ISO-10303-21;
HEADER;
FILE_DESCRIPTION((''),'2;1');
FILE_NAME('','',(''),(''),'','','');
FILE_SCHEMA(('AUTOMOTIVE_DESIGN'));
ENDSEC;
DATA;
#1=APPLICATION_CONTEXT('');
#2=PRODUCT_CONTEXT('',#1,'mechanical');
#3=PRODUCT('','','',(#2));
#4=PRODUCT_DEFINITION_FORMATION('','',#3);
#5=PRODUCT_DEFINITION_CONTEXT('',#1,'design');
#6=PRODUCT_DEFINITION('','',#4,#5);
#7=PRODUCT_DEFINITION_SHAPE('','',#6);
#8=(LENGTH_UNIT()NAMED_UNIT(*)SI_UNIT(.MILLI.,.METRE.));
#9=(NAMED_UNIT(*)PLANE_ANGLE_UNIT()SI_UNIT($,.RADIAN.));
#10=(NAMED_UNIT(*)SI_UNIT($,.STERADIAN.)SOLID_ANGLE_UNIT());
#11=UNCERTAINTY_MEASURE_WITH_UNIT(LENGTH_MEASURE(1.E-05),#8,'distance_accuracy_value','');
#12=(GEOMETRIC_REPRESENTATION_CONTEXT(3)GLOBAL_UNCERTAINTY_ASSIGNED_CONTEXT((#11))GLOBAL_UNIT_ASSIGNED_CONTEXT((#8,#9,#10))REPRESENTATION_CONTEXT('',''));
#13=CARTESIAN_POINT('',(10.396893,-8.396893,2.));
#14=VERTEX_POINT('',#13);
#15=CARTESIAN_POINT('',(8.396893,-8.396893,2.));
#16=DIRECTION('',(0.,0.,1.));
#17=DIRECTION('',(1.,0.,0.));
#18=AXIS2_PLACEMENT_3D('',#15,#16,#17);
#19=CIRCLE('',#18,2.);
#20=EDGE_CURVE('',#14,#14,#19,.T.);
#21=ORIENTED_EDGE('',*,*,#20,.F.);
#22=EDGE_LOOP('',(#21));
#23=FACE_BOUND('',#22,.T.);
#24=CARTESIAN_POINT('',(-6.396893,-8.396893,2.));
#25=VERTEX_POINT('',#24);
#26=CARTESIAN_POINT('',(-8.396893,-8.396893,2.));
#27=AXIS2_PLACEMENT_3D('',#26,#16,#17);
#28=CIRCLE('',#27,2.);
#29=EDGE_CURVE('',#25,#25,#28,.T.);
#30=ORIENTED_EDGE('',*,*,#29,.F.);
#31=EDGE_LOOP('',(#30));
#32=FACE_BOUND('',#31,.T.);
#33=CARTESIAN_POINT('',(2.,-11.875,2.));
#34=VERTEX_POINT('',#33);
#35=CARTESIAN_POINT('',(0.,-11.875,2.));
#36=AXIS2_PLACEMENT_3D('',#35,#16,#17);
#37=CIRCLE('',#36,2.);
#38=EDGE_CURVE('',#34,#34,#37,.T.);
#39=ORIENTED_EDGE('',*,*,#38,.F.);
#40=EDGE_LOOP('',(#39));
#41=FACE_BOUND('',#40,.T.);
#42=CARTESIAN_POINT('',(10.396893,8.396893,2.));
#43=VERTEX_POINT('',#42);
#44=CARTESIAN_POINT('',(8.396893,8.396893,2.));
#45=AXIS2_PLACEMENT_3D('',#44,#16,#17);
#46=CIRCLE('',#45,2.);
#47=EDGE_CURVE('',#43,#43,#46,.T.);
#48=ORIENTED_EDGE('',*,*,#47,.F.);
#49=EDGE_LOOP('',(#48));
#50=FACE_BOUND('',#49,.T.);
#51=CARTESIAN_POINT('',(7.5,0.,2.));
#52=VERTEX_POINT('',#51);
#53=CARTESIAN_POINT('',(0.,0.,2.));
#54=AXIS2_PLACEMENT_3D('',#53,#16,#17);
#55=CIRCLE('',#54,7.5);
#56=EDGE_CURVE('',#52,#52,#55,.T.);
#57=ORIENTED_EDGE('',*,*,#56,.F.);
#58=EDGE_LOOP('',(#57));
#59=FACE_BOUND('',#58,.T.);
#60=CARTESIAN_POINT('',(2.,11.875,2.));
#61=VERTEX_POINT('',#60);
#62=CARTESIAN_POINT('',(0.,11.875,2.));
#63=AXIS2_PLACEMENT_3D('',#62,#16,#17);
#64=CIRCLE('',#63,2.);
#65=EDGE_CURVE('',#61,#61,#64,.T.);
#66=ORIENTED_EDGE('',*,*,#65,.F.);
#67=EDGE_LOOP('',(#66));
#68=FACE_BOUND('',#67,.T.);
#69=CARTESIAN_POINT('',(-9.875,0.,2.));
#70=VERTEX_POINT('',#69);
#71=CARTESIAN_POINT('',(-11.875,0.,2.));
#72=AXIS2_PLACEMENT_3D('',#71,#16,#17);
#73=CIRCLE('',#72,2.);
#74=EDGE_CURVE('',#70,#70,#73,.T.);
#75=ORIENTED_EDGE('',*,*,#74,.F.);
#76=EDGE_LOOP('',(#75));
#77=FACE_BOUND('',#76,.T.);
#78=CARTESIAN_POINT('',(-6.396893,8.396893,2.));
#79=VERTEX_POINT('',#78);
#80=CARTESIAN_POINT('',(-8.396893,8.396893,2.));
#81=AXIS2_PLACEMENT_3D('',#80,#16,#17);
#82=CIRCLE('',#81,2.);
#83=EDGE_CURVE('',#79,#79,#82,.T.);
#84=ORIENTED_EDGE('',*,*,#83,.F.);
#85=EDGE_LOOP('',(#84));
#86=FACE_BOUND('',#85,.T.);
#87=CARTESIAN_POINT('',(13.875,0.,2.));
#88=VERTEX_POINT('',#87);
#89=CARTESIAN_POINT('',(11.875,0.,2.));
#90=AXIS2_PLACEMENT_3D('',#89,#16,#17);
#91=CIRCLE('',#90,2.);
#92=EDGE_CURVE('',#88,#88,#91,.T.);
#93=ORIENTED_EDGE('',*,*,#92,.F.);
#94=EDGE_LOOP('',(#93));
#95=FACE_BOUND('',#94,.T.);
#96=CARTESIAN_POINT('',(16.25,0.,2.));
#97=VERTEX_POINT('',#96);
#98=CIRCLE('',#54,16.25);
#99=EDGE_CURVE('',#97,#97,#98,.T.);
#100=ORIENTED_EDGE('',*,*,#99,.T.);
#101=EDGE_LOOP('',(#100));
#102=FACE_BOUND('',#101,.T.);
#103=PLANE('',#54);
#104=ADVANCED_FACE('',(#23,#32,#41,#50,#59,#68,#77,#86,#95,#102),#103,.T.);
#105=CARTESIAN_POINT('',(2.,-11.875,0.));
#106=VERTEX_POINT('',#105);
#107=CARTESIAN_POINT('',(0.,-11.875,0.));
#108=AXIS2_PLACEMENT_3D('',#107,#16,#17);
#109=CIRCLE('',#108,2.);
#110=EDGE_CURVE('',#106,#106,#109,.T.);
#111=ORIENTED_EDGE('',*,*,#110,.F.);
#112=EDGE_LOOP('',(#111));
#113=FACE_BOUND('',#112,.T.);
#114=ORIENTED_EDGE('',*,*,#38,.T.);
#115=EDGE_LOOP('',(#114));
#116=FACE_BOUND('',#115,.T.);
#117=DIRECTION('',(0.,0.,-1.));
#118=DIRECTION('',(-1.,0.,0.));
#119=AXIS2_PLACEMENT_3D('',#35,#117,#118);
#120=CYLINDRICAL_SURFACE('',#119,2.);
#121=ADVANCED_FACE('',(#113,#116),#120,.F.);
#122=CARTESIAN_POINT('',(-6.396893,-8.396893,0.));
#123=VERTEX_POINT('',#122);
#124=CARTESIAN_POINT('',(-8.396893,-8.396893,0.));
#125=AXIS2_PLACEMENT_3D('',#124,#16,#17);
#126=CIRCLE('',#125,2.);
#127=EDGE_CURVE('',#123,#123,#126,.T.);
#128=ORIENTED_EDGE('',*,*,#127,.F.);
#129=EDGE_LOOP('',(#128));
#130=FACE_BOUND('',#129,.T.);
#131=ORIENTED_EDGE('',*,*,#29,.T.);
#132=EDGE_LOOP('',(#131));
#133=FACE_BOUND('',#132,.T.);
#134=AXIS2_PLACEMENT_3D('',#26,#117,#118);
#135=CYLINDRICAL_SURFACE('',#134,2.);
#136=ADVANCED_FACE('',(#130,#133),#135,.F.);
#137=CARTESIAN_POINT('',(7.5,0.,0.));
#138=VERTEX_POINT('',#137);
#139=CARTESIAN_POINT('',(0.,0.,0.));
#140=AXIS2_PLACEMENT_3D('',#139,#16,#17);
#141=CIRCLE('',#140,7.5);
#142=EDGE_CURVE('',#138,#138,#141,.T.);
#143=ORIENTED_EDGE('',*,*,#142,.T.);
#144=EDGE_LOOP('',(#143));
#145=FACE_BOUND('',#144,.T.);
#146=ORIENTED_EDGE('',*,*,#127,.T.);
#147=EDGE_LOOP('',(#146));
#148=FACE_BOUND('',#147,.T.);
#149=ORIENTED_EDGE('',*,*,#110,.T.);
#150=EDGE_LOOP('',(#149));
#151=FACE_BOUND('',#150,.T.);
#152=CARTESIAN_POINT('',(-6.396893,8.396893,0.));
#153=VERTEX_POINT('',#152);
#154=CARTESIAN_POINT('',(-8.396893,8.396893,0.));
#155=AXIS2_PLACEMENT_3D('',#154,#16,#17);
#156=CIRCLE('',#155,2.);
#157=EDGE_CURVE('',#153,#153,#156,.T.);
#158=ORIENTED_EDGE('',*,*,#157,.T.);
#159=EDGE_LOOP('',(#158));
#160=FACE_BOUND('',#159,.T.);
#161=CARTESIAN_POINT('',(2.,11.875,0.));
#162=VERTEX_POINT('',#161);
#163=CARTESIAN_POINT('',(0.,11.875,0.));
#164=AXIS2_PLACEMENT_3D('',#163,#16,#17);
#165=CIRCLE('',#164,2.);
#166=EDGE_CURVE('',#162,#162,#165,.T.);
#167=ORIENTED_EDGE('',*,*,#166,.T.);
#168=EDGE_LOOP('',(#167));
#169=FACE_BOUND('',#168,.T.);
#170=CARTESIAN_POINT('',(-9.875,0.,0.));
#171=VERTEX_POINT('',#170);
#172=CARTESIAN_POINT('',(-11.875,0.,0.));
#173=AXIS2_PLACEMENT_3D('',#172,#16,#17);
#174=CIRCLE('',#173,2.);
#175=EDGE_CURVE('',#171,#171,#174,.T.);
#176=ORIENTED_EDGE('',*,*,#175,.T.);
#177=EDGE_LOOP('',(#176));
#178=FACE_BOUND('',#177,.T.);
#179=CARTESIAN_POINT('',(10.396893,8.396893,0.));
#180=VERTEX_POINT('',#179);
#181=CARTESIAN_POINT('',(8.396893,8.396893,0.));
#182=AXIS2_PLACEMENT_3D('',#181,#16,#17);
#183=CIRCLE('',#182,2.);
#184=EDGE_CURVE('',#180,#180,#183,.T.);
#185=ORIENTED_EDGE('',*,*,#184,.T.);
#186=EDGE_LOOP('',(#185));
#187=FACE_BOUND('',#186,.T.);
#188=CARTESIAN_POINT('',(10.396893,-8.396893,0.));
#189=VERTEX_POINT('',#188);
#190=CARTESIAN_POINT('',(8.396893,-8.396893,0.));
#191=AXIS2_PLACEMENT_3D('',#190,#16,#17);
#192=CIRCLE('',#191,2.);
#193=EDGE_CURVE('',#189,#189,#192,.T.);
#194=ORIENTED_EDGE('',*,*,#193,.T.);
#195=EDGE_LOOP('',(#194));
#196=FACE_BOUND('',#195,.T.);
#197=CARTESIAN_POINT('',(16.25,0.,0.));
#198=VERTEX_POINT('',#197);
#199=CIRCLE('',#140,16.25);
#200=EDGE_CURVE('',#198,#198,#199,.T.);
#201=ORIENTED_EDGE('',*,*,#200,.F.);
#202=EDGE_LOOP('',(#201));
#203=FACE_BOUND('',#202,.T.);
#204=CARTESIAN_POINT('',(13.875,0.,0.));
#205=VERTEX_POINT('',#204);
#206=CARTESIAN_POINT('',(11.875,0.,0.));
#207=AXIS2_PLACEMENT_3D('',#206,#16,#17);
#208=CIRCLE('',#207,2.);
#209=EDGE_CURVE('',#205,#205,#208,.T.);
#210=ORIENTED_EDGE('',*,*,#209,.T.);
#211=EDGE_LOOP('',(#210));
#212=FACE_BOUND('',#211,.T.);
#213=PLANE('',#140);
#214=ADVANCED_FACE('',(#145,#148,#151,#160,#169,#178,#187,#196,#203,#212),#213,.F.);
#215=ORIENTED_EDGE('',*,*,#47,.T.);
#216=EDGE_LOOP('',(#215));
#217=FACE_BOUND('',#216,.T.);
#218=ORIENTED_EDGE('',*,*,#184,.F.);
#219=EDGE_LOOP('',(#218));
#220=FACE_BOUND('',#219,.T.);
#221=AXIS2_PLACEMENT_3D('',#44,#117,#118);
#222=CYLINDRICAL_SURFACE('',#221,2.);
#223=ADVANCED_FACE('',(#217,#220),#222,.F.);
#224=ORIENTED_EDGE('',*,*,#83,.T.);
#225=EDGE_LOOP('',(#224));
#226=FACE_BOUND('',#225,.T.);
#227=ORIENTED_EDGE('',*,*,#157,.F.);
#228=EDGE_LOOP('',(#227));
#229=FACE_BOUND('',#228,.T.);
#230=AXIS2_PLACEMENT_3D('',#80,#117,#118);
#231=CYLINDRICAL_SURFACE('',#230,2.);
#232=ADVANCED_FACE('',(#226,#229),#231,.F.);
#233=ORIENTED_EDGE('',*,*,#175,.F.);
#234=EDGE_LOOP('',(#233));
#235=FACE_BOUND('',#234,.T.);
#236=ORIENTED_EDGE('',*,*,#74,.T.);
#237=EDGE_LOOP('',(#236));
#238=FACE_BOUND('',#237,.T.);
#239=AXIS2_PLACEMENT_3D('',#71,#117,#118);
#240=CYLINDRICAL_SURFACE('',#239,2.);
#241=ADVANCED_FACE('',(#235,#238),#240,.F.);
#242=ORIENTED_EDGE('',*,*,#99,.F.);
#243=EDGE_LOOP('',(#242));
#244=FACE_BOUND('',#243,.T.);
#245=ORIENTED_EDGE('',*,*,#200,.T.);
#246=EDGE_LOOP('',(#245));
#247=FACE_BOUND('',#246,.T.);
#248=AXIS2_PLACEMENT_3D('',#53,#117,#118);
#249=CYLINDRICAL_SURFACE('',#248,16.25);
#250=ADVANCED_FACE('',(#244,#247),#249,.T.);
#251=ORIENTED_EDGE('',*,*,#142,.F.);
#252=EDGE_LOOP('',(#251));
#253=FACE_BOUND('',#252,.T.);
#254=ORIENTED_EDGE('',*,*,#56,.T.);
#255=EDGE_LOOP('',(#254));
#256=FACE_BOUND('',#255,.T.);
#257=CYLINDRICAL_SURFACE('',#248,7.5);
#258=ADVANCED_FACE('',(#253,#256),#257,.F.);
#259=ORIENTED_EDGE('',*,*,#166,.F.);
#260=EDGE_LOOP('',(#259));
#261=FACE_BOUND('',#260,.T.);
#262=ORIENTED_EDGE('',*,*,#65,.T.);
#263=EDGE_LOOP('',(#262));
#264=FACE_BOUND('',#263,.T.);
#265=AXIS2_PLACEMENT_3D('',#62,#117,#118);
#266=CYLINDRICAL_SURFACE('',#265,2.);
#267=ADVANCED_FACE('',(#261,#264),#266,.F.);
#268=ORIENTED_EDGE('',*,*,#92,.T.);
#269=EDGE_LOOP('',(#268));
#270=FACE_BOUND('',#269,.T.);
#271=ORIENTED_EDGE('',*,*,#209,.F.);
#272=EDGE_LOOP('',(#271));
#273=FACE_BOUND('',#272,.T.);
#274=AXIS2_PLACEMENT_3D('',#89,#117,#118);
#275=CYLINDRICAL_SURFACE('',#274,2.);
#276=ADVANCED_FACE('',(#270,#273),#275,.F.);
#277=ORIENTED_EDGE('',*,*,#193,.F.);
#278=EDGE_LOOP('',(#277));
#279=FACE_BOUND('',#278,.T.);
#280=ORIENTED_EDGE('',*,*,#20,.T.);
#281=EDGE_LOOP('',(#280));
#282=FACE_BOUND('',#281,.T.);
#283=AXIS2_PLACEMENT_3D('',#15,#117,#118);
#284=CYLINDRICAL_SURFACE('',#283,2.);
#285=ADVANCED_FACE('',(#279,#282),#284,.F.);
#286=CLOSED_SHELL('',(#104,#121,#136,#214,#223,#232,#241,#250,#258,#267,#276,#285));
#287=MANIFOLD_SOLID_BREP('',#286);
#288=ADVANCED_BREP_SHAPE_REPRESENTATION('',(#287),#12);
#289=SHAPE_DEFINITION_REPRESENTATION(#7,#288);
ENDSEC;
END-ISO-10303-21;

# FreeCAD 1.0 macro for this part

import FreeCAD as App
import Part
import Sketcher
from FreeCAD import Vector

doc = App.newDocument("Part")
body = doc.addObject("PartDesign::Body", "Body")

sketch1 = body.newObject("Sketcher::SketchObject", "Sketch")
sketch1.AttachmentSupport = (doc.getObject("XY_Plane"), [""])
sketch1.MapMode = "FlatFace"
sketch1.addGeometry([
    Part.Circle(Vector(0, 0, 0), Vector(0, 0, 1), 16.2),
    Part.Circle(Vector(-8.4, -8.4, 0), Vector(0, 0, 1), 2),
    Part.Circle(Vector(0, -11.9, 0), Vector(0, 0, 1), 2),
    Part.Circle(Vector(8.4, -8.4, 0), Vector(0, 0, 1), 2),
    Part.Circle(Vector(-11.9, 0, 0), Vector(0, 0, 1), 2),
    Part.Circle(Vector(-8.4, 8.4, 0), Vector(0, 0, 1), 2),
    Part.Circle(Vector(0, 0, 0), Vector(0, 0, 1), 7.5),
    Part.Circle(Vector(11.9, 0, 0), Vector(0, 0, 1), 2),
    Part.Circle(Vector(0, 11.9, 0), Vector(0, 0, 1), 2),
    Part.Circle(Vector(8.4, 8.4, 0), Vector(0, 0, 1), 2),
], False)
sketch1.addConstraint([
    Sketcher.Constraint("Coincident", 0, 3, -1, 1),
    Sketcher.Constraint("Coincident", 6, 3, -1, 1),
    Sketcher.Constraint("Equal", 1, 2),
    Sketcher.Constraint("Equal", 2, 3),
    Sketcher.Constraint("Equal", 3, 4),
    Sketcher.Constraint("Equal", 4, 5),
    Sketcher.Constraint("Equal", 5, 7),
    Sketcher.Constraint("Equal", 7, 8),
    Sketcher.Constraint("Equal", 8, 9),
    Sketcher.Constraint("Symmetric", 3, 3, 5, 3, -1, 1),
    Sketcher.Constraint("Symmetric", 4, 3, 7, 3, -1, 1),
    Sketcher.Constraint("Symmetric", 2, 3, 8, 3, -1, 1),
    Sketcher.Constraint("Symmetric", 1, 3, 9, 3, -1, 1),
    Sketcher.Constraint("Symmetric", 1, 3, 3, 3, -2),
    Sketcher.Constraint("PointOnObject", 2, 3, -2),
    Sketcher.Constraint("PointOnObject", 4, 3, -1),
    Sketcher.Constraint("Diameter", 1, 4.0),
    Sketcher.Constraint("Diameter", 6, 15.0),
    Sketcher.Constraint("Diameter", 0, 32.5),
    Sketcher.Constraint("DistanceY", 2, 3, -1, 1, 11.875),
    Sketcher.Constraint("DistanceX", 4, 3, -1, 1, 11.875),
    Sketcher.Constraint("DistanceX", 1, 3, -1, 1, 8.396893),
    Sketcher.Constraint("DistanceY", 1, 3, -1, 1, 8.396893),
])
pad1 = body.newObject("PartDesign::Pad", "Pad")
pad1.Profile = sketch1
pad1.Length = 2

doc.recompute()
